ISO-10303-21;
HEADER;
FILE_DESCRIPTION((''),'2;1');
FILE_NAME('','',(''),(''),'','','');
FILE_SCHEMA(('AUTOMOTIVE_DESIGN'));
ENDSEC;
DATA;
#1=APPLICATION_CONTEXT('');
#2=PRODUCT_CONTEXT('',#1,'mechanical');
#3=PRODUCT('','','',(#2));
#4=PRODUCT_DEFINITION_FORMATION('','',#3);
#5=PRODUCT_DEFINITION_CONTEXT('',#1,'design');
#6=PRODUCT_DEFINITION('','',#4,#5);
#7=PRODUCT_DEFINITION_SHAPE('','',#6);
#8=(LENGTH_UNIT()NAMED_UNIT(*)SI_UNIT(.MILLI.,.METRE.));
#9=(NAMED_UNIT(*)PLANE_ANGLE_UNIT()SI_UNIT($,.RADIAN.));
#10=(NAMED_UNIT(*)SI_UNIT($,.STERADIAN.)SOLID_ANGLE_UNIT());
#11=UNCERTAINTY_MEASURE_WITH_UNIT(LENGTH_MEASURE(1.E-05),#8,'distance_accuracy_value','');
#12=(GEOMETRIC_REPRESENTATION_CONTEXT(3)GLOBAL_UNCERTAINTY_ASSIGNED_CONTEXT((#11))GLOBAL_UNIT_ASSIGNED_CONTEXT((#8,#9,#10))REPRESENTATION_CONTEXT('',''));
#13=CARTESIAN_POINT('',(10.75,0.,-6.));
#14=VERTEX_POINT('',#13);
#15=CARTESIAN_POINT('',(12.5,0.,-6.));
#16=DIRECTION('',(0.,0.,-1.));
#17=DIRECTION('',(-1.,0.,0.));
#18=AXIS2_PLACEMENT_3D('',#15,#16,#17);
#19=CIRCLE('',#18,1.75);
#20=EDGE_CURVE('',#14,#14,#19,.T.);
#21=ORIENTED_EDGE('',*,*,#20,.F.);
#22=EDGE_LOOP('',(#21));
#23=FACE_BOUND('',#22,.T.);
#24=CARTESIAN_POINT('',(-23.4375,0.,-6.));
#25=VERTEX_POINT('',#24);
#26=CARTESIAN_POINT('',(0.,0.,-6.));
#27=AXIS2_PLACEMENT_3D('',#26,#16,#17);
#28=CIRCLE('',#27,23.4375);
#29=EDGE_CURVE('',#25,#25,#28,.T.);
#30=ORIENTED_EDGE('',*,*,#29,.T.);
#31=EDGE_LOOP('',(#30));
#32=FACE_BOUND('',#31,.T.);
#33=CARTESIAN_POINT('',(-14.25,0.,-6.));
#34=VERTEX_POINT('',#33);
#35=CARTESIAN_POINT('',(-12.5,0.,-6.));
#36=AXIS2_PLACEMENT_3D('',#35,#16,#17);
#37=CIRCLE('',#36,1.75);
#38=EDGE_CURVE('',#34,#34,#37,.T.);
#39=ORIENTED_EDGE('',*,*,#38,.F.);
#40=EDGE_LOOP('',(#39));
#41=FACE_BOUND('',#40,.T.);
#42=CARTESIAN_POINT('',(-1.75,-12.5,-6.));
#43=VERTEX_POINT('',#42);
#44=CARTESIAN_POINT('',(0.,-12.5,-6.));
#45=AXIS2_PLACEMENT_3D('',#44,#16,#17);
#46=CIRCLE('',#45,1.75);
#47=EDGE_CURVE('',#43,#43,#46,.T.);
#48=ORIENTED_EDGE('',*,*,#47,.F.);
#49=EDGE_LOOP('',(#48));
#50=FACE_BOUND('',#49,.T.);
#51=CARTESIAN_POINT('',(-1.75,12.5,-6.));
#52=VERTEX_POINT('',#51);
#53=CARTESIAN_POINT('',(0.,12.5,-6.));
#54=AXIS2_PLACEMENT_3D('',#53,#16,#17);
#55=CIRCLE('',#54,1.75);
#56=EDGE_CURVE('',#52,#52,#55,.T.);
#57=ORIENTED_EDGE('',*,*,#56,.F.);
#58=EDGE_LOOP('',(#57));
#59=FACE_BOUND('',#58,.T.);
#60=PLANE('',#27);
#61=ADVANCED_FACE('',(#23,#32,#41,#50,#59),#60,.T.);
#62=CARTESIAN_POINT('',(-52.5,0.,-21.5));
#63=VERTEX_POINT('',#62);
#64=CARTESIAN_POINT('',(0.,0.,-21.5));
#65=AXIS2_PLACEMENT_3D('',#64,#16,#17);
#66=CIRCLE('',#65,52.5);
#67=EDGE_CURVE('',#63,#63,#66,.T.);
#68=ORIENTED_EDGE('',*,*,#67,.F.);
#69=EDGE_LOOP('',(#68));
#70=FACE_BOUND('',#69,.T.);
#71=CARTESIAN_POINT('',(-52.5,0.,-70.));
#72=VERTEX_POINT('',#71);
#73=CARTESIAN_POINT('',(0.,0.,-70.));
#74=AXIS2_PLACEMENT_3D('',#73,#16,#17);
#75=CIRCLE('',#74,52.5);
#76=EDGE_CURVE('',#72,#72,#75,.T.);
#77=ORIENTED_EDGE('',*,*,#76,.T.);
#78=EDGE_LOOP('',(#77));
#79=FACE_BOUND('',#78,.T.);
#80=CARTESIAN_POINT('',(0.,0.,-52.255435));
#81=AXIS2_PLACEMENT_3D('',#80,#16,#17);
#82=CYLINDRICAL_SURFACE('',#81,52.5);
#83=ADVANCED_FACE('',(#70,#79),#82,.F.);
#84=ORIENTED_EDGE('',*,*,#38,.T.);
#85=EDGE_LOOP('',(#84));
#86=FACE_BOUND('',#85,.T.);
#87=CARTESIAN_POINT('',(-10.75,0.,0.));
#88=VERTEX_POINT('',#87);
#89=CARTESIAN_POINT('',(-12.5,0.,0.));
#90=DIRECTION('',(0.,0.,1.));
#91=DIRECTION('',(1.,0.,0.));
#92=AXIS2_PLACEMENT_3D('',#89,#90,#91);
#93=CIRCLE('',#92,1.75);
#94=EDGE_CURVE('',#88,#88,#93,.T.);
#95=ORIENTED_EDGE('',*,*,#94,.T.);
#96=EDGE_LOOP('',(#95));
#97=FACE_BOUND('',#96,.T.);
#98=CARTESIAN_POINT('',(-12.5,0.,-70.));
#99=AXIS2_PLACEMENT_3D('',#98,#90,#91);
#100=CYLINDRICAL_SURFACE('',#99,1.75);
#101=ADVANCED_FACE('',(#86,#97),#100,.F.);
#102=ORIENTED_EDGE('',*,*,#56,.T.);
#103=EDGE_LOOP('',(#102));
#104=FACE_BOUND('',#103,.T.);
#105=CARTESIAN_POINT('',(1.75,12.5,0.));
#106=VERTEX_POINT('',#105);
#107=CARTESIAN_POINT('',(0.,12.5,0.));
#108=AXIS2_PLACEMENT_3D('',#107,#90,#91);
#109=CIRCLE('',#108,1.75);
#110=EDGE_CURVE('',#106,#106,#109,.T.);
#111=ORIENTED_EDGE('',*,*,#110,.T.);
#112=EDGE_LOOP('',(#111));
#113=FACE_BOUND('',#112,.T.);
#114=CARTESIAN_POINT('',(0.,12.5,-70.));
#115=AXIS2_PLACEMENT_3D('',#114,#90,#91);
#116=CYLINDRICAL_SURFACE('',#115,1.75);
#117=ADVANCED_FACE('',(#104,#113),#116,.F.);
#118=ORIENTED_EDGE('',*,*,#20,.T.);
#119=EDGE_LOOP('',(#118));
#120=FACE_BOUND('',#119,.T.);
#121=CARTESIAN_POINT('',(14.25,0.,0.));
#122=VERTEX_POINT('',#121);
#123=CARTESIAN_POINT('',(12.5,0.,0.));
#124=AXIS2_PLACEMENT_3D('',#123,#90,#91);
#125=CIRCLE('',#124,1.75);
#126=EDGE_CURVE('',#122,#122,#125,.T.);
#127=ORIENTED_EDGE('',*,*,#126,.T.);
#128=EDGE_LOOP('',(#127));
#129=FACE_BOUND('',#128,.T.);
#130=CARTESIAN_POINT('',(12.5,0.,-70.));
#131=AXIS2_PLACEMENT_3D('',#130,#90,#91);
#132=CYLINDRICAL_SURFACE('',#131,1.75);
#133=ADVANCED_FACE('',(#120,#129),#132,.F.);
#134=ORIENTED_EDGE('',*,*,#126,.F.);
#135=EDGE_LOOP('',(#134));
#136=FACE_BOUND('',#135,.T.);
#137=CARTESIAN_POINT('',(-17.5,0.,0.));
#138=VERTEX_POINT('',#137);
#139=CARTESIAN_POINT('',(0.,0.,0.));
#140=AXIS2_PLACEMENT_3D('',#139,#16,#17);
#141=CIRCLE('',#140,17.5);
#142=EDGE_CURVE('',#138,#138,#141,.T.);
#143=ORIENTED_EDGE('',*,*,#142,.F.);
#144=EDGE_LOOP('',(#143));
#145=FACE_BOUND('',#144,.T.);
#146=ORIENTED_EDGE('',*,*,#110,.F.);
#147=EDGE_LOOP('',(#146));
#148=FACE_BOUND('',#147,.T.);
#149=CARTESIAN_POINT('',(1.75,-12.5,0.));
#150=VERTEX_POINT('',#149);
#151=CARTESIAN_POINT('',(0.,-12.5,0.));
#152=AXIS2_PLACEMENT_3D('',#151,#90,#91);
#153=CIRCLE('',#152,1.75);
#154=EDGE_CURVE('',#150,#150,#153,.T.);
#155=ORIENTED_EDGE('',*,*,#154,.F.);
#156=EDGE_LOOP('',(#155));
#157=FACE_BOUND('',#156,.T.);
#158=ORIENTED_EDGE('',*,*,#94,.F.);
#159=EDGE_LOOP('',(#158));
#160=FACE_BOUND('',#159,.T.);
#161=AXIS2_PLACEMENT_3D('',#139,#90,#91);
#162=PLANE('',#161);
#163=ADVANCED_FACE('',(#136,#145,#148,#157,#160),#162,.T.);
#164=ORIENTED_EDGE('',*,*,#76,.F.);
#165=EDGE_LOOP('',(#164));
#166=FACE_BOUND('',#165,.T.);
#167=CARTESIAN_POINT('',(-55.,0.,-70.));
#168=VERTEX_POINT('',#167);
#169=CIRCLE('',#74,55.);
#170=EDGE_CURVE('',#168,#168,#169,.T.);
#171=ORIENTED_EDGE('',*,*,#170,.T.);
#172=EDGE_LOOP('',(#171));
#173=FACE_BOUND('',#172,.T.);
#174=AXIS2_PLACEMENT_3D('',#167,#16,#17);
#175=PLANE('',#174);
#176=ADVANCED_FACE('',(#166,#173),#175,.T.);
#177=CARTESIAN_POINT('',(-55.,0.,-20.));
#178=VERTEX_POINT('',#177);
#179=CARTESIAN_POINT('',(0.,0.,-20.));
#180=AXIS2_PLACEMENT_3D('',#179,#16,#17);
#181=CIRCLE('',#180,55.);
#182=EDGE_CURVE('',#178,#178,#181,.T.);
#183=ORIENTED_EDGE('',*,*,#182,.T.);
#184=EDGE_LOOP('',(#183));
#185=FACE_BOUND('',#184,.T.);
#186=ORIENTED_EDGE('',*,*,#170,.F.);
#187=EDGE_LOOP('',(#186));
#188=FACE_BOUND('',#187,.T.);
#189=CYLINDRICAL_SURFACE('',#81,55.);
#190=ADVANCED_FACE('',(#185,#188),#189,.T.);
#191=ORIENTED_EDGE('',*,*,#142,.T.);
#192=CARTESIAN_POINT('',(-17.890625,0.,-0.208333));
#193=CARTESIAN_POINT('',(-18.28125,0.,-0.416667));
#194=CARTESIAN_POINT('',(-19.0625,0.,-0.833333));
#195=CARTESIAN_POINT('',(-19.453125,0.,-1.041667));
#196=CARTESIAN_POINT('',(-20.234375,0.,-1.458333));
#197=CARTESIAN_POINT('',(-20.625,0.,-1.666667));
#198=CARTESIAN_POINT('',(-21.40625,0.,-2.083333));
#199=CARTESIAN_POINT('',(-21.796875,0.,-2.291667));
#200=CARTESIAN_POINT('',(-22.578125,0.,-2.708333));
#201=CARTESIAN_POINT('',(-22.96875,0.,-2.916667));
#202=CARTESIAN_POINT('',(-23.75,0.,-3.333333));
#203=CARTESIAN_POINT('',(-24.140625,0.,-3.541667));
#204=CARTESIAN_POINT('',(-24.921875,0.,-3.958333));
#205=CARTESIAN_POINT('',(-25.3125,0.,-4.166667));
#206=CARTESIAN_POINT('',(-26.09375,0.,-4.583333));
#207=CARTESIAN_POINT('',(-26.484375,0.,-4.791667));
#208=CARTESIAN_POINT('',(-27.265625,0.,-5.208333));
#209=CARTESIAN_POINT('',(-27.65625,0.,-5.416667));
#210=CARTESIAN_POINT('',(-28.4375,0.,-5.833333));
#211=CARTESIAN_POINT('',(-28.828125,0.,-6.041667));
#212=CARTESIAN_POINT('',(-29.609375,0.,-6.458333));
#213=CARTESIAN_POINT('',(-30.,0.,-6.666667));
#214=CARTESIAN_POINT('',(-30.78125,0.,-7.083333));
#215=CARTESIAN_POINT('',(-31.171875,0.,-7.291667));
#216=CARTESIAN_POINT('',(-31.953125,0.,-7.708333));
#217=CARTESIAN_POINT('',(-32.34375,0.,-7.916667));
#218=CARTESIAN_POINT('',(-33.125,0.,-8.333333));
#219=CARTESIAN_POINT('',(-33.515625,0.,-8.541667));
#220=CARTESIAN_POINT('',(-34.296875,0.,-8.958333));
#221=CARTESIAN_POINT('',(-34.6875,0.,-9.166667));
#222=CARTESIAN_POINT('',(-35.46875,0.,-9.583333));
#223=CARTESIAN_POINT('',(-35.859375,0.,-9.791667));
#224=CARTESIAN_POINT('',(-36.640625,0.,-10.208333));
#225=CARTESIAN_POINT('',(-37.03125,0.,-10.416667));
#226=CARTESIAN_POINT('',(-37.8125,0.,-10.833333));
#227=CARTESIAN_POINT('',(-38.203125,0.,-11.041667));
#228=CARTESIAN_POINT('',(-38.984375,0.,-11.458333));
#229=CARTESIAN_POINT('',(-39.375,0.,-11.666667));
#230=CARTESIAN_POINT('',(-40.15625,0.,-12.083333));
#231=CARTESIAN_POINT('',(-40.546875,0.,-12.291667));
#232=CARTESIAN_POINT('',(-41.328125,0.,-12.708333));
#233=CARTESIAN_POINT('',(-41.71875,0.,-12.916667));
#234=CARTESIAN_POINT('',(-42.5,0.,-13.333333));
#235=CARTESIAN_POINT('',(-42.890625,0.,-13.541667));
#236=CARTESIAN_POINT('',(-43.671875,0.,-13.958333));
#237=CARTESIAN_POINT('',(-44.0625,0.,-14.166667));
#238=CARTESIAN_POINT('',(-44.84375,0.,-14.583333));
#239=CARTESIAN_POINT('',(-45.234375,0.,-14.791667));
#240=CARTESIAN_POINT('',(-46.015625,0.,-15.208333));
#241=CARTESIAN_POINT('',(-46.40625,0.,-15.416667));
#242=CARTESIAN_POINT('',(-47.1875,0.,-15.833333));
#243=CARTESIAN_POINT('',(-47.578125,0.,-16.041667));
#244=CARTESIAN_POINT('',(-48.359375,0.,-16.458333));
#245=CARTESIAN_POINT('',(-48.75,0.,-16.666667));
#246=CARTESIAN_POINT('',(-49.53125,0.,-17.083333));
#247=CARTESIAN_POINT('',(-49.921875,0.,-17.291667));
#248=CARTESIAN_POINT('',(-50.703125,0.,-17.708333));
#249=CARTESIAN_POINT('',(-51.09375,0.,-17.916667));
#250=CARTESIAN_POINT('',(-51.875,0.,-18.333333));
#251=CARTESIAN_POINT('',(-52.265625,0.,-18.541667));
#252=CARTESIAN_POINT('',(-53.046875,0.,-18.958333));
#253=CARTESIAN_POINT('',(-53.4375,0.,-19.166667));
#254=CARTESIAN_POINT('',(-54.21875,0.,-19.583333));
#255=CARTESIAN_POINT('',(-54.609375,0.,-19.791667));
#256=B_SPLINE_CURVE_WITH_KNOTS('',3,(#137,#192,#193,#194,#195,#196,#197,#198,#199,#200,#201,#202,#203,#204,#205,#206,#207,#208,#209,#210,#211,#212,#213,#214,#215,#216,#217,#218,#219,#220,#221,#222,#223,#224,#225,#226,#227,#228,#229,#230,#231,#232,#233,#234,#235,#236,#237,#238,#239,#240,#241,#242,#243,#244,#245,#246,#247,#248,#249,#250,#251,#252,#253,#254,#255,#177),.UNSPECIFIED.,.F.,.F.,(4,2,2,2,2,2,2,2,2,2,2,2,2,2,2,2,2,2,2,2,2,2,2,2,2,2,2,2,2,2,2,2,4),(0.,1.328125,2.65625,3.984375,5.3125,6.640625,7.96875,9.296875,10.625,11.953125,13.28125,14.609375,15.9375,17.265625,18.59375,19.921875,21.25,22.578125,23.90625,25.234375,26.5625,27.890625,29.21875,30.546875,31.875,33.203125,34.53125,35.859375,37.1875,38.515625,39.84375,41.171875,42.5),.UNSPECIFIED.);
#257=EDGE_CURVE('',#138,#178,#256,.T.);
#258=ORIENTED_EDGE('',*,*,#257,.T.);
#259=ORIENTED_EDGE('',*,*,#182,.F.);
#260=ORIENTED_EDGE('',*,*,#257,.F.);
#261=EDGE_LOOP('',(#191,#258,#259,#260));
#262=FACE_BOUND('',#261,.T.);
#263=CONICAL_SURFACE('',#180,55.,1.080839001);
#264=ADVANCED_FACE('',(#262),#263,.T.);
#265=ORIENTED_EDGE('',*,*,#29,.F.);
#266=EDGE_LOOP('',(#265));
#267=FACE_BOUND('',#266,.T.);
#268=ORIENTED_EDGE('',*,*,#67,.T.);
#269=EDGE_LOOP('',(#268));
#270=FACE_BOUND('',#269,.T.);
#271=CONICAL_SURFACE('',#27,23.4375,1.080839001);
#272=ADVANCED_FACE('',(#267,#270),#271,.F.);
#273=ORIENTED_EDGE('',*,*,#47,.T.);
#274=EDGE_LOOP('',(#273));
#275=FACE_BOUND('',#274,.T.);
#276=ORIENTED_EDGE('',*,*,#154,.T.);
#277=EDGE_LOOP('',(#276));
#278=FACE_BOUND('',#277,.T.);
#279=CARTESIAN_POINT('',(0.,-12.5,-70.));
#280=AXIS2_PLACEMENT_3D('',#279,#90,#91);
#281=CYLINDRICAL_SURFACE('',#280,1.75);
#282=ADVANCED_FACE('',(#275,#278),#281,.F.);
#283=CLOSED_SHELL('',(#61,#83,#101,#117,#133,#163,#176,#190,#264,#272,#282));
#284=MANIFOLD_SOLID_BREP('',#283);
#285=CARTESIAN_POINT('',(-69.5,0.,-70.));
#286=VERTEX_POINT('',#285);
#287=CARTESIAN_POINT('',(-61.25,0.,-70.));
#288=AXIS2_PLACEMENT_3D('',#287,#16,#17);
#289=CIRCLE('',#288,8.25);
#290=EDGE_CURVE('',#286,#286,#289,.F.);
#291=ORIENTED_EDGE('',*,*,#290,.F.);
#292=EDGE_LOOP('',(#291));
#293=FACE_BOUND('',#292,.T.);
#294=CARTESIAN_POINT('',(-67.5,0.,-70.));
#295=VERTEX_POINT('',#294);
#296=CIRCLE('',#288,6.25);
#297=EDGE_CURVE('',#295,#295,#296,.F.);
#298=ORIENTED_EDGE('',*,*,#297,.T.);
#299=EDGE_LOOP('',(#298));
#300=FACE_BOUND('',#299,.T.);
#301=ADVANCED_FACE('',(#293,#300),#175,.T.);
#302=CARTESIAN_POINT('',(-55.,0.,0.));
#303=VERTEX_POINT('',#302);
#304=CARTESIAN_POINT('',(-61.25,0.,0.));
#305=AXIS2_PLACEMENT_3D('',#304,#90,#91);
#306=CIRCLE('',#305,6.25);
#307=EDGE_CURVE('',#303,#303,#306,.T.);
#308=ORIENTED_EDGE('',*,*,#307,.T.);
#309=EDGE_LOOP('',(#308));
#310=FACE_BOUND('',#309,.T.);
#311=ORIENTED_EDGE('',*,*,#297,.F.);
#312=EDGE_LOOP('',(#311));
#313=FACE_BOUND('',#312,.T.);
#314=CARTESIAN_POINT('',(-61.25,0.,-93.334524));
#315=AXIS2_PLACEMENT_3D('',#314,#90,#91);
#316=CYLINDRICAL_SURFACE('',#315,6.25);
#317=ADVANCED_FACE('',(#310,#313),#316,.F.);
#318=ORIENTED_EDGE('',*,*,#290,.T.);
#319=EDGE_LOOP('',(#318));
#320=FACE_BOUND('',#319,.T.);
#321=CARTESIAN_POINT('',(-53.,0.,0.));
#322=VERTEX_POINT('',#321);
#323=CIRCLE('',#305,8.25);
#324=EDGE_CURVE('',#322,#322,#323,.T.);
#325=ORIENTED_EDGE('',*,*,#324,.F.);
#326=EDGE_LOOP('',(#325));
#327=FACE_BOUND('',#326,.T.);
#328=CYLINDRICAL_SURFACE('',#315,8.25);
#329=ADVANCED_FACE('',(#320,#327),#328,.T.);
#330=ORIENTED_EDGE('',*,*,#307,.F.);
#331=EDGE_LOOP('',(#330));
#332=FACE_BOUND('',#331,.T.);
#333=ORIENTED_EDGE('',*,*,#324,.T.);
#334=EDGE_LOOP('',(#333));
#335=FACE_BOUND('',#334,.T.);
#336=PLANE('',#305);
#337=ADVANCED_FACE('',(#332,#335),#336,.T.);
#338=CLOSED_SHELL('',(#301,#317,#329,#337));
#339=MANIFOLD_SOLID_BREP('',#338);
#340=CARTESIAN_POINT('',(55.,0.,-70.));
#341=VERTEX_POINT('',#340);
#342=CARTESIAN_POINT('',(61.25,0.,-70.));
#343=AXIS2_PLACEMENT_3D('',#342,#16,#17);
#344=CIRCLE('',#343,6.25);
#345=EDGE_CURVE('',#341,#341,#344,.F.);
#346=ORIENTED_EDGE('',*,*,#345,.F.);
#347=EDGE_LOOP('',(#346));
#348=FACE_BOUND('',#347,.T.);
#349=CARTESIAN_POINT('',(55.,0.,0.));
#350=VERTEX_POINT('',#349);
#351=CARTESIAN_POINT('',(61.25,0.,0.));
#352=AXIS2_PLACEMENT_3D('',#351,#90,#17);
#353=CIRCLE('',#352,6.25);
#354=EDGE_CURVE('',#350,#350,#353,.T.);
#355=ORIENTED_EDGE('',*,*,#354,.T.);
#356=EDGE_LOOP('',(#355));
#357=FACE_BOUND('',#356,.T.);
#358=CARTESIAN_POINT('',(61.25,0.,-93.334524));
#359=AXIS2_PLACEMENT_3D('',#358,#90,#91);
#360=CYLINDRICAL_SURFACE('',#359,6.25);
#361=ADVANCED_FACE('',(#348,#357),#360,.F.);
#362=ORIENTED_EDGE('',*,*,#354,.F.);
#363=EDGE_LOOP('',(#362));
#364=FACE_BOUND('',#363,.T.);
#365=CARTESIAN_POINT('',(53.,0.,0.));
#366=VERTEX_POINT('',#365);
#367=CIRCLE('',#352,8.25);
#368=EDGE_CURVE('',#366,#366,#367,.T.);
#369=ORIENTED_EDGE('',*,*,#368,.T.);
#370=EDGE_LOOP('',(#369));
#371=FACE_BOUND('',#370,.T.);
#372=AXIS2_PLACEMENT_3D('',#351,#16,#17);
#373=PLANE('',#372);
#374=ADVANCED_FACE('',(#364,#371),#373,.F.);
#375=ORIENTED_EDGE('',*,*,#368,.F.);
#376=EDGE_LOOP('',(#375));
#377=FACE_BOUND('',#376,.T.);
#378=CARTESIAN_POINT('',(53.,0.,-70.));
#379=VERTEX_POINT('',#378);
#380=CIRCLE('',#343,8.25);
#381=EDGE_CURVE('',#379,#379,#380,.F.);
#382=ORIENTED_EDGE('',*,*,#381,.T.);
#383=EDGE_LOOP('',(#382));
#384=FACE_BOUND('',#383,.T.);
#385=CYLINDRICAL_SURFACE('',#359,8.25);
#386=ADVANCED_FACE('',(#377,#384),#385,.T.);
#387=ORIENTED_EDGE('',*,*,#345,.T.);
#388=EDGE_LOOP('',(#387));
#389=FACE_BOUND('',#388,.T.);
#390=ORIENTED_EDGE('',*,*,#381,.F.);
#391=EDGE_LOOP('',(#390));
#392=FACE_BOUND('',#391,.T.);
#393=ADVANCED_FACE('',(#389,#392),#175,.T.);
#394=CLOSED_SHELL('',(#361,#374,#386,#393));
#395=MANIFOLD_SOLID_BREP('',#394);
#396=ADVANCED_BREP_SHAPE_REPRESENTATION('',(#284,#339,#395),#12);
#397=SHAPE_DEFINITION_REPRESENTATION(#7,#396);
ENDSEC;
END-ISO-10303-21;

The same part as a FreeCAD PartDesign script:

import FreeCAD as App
import Part
import Sketcher

V = App.Vector

doc = App.newDocument("Part")
params = doc.addObject("Spreadsheet::Sheet", "Params")
for row, (alias, value) in enumerate([
    ("sketch1_height", "6 mm"),
    ("sketch1_height2", "50 mm"),
    ("sketch1_width", "17.5 mm"),
    ("sketch1_width2", "2.5 mm"),
    ("sketch1_height3", "48.5 mm"),
    ("revolution_angle", "360 deg"),
    ("sketch2_diameter", "3.5 mm"),
    ("sketch3_diameter", "16.5 mm"),
    ("sketch3_diameter2", "12.5 mm"),
    ("pad1_length", "70 mm"),
    ("sketch4_diameter", "16.5 mm"),
    ("sketch4_diameter2", "12.5 mm"),
    ("pad2_length", "70 mm"),
], start=1):
    params.set(f"A{row}", alias)
    params.set(f"B{row}", "=" + value)
    params.setAlias(f"B{row}", alias)

body = doc.addObject("PartDesign::Body", "Body")

sketch1 = body.newObject("Sketcher::SketchObject", "Sketch")
sketch1.AttachmentSupport = (doc.getObject("XZ_Plane"), [""])
sketch1.MapMode = "FlatFace"
sketch1.addGeometry([
    Part.LineSegment(V(-17.5, 0, 0), V(0, 0, 0)),
    Part.LineSegment(V(0, 0, 0), V(0, -6, 0)),
    Part.LineSegment(V(0, -6, 0), V(-23.4, -6, 0)),
    Part.LineSegment(V(-23.4, -6, 0), V(-52.5, -21.5, 0)),
    Part.LineSegment(V(-52.5, -21.5, 0), V(-52.5, -70, 0)),
    Part.LineSegment(V(-52.5, -70, 0), V(-55, -70, 0)),
    Part.LineSegment(V(-55, -70, 0), V(-55, -20, 0)),
    Part.LineSegment(V(-55, -20, 0), V(-17.5, 0, 0)),
], False)
sketch1.addConstraint([
    Sketcher.Constraint("Coincident", 0, 2, 1, 1),
    Sketcher.Constraint("Coincident", 1, 2, 2, 1),
    Sketcher.Constraint("Coincident", 2, 2, 3, 1),
    Sketcher.Constraint("Coincident", 3, 2, 4, 1),
    Sketcher.Constraint("Coincident", 4, 2, 5, 1),
    Sketcher.Constraint("Coincident", 5, 2, 6, 1),
    Sketcher.Constraint("Coincident", 6, 2, 7, 1),
    Sketcher.Constraint("Coincident", 7, 2, 0, 1),
    Sketcher.Constraint("Horizontal", 0),
    Sketcher.Constraint("Vertical", 1),
    Sketcher.Constraint("Horizontal", 2),
    Sketcher.Constraint("Vertical", 4),
    Sketcher.Constraint("Horizontal", 5),
    Sketcher.Constraint("Vertical", 6),
    Sketcher.Constraint("Coincident", 0, 2, -1, 1),
    Sketcher.Constraint("Parallel", 3, 7),
    Sketcher.Constraint("DistanceY", 1, 2, 1, 1, 6.0),
    Sketcher.Constraint("DistanceY", 6, 1, 6, 2, 50.0),
    Sketcher.Constraint("DistanceX", 0, 1, 0, 2, 17.5),
    Sketcher.Constraint("DistanceX", 5, 2, 5, 1, 2.5),
    Sketcher.Constraint("DistanceY", 4, 2, 4, 1, 48.5),
    Sketcher.Constraint("DistanceY", 4, 2, -1, 1, 70.0),
    Sketcher.Constraint("DistanceX", 5, 2, -1, 1, 55.0),
])
sketch1.setExpression("Constraints[16]", "Params.sketch1_height")
sketch1.setExpression("Constraints[17]", "Params.sketch1_height2")
sketch1.setExpression("Constraints[18]", "Params.sketch1_width")
sketch1.setExpression("Constraints[19]", "Params.sketch1_width2")
sketch1.setExpression("Constraints[20]", "Params.sketch1_height3")
revolution = body.newObject("PartDesign::Revolution", "Revolution")
revolution.Profile = sketch1
revolution.ReferenceAxis = (sketch1, ["V_Axis"])
revolution.setExpression("Angle", "Params.revolution_angle")

sketch2 = body.newObject("Sketcher::SketchObject", "Sketch001")
sketch2.AttachmentSupport = (doc.getObject("XY_Plane"), [""])
sketch2.MapMode = "FlatFace"
sketch2.addGeometry([
    Part.Circle(V(0, 12.5, 0), V(0, 0, 1), 1.8),
    Part.Circle(V(12.5, 0, 0), V(0, 0, 1), 1.8),
    Part.Circle(V(0, -12.5, 0), V(0, 0, 1), 1.8),
    Part.Circle(V(-12.5, 0, 0), V(0, 0, 1), 1.8),
], False)
sketch2.addConstraint([
    Sketcher.Constraint("Equal", 0, 1),
    Sketcher.Constraint("Equal", 1, 2),
    Sketcher.Constraint("Equal", 2, 3),
    Sketcher.Constraint("Symmetric", 0, 3, 2, 3, -1, 1),
    Sketcher.Constraint("Symmetric", 1, 3, 3, 3, -1, 1),
    Sketcher.Constraint("PointOnObject", 0, 3, -2),
    Sketcher.Constraint("PointOnObject", 1, 3, -1),
    Sketcher.Constraint("Diameter", 0, 3.5),
    Sketcher.Constraint("DistanceY", 2, 3, 0, 3, 25.0),
    Sketcher.Constraint("DistanceX", 3, 3, 1, 3, 25.0),
])
sketch2.setExpression("Constraints[7]", "Params.sketch2_diameter")
pocket1 = body.newObject("PartDesign::Pocket", "Pocket")
pocket1.Profile = sketch2
pocket1.Type = "ThroughAll"
body2 = doc.addObject("PartDesign::Body", "Body001")

sketch3 = body2.newObject("Sketcher::SketchObject", "Sketch002")
sketch3.AttachmentSupport = (doc.getObject("XY_Plane001"), [""])
sketch3.MapMode = "FlatFace"
sketch3.addGeometry([
    Part.Circle(V(-61, 0, 0), V(0, 0, 1), 8),
    Part.Circle(V(-61, 0, 0), V(0, 0, 1), 6),
], False)
sketch3.addConstraint([
    Sketcher.Constraint("Coincident", 1, 3, 0, 3),
    Sketcher.Constraint("PointOnObject", 0, 3, -1),
    Sketcher.Constraint("Diameter", 0, 16.5),
    Sketcher.Constraint("Diameter", 1, 12.5),
    Sketcher.Constraint("DistanceX", 0, 3, -1, 1, 61.25),
])
sketch3.setExpression("Constraints[2]", "Params.sketch3_diameter")
sketch3.setExpression("Constraints[3]", "Params.sketch3_diameter2")
pad1 = body2.newObject("PartDesign::Pad", "Pad")
pad1.Profile = sketch3
pad1.setExpression("Length", "Params.pad1_length")
pad1.Reversed = True
body3 = doc.addObject("PartDesign::Body", "Body002")

sketch4 = body3.newObject("Sketcher::SketchObject", "Sketch003")
sketch4.AttachmentSupport = (doc.getObject("XY_Plane002"), [""])
sketch4.MapMode = "FlatFace"
sketch4.addGeometry([
    Part.Circle(V(61, 0, 0), V(0, 0, 1), 8),
    Part.Circle(V(61, 0, 0), V(0, 0, 1), 6),
], False)
sketch4.addConstraint([
    Sketcher.Constraint("Coincident", 1, 3, 0, 3),
    Sketcher.Constraint("PointOnObject", 0, 3, -1),
    Sketcher.Constraint("Diameter", 0, 16.5),
    Sketcher.Constraint("Diameter", 1, 12.5),
    Sketcher.Constraint("DistanceX", -1, 1, 0, 3, 61.25),
])
sketch4.setExpression("Constraints[2]", "Params.sketch4_diameter")
sketch4.setExpression("Constraints[3]", "Params.sketch4_diameter2")
pad2 = body3.newObject("PartDesign::Pad", "Pad001")
pad2.Profile = sketch4
pad2.setExpression("Length", "Params.pad2_length")
pad2.Reversed = True

doc.recompute()
